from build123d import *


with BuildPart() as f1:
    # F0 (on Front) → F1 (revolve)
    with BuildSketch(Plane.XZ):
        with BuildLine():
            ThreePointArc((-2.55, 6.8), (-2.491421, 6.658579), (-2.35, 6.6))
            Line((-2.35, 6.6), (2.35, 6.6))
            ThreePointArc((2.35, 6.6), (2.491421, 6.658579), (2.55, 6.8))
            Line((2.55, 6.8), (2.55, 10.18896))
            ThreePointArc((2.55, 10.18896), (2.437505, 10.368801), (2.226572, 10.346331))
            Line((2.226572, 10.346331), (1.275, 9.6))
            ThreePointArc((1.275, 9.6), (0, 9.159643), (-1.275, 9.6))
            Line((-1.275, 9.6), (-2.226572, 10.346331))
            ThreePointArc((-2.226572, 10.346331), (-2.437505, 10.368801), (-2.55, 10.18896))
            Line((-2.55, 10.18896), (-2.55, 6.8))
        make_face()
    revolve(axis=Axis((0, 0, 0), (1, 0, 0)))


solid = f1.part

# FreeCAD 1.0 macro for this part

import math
import FreeCAD as App
import Part
import Sketcher

V = App.Vector

doc = App.newDocument("Part")
body = doc.addObject("PartDesign::Body", "Body")

# Sketch on XZ plane
sketch1 = doc.addObject("Sketcher::SketchObject", "Sketch")
body.addObject(sketch1)
sketch1.AttachmentSupport = (doc.XZ_Plane, [""])
sketch1.MapMode = "FlatFace"
sketch1.addGeometry(Part.ArcOfCircle(Part.Circle(V(-2.349999, 6.800001, 0), V(0, 0, 1), 0.200001), math.radians(-179.999652), math.radians(-90.000348)), False)
sketch1.addGeometry(Part.LineSegment(V(-2.35, 6.6, 0), V(2.35, 6.6, 0)), False)
sketch1.addGeometry(Part.ArcOfCircle(Part.Circle(V(2.349999, 6.800001, 0), V(0, 0, 1), 0.200001), math.radians(-89.999652), math.radians(-0.000348)), False)
sketch1.addGeometry(Part.LineSegment(V(2.55, 6.8, 0), V(2.55, 10.18896, 0)), False)
sketch1.addGeometry(Part.ArcOfCircle(Part.Circle(V(2.35, 10.188959, 0), V(0, 0, 1), 0.2), math.radians(0.000144), math.radians(128.107344)), False)
sketch1.addGeometry(Part.LineSegment(V(2.226572, 10.346331, 0), V(1.275, 9.6, 0)), False)
sketch1.addGeometry(Part.ArcOfCircle(Part.Circle(V(0, 11.225625, 0), V(0, 0, 1), 2.065982), math.radians(-128.107577), math.radians(-51.892423)), False)
sketch1.addGeometry(Part.LineSegment(V(-1.275, 9.6, 0), V(-2.226572, 10.346331, 0)), False)
sketch1.addGeometry(Part.ArcOfCircle(Part.Circle(V(-2.35, 10.188959, 0), V(0, 0, 1), 0.2), math.radians(51.892656), math.radians(179.999856)), False)
sketch1.addGeometry(Part.LineSegment(V(-2.55, 10.18896, 0), V(-2.55, 6.8, 0)), False)
sketch1.addConstraint(Sketcher.Constraint("Coincident", 0, 2, 1, 1))
sketch1.addConstraint(Sketcher.Constraint("Coincident", 1, 2, 2, 1))
sketch1.addConstraint(Sketcher.Constraint("Coincident", 2, 2, 3, 1))
sketch1.addConstraint(Sketcher.Constraint("Coincident", 3, 2, 4, 1))
sketch1.addConstraint(Sketcher.Constraint("Coincident", 4, 2, 5, 1))
sketch1.addConstraint(Sketcher.Constraint("Tangent", 5, 2, 6, 2))
sketch1.addConstraint(Sketcher.Constraint("Tangent", 6, 1, 7, 1))
sketch1.addConstraint(Sketcher.Constraint("Coincident", 7, 2, 8, 1))
sketch1.addConstraint(Sketcher.Constraint("Coincident", 8, 2, 9, 1))
sketch1.addConstraint(Sketcher.Constraint("Coincident", 9, 2, 0, 1))
sketch1.addConstraint(Sketcher.Constraint("Horizontal", 1))
sketch1.addConstraint(Sketcher.Constraint("Vertical", 3))
sketch1.addConstraint(Sketcher.Constraint("Vertical", 9))
sketch1.addConstraint(Sketcher.Constraint("Equal", 0, 2))
sketch1.addConstraint(Sketcher.Constraint("Equal", 2, 4))
sketch1.addConstraint(Sketcher.Constraint("Equal", 4, 8))
sketch1.addConstraint(Sketcher.Constraint("Symmetric", 4, 3, 8, 3, -2))
sketch1.addConstraint(Sketcher.Constraint("PointOnObject", 6, 3, -2))
sketch1.addConstraint(Sketcher.Constraint("Horizontal", 0, 3, 2, 2))
sketch1.addConstraint(Sketcher.Constraint("Horizontal", 8, 3, 3, 2))
sketch1.addConstraint(Sketcher.Constraint("Horizontal", 4, 2, 7, 2))
sketch1.addConstraint(Sketcher.Constraint("Horizontal", 3, 2, 8, 2))
sketch1.addConstraint(Sketcher.Constraint("Horizontal", 2, 2, 9, 2))
sketch1.addConstraint(Sketcher.Constraint("Vertical", 8, 3, 0, 2))
sketch1.addConstraint(Sketcher.Constraint("Vertical", 4, 3, 1, 2))
sketch1.addConstraint(Sketcher.Constraint("Radius", 0, 0.200001))
sketch1.addConstraint(Sketcher.Constraint("DistanceX", 1, 1, 1, 2, 4.7))
sketch1.addConstraint(Sketcher.Constraint("DistanceY", 0, 2, 6, 1, 3.0))
sketch1.addConstraint(Sketcher.Constraint("DistanceY", -1, 1, 0, 3, 6.800001))
sketch1.addConstraint(Sketcher.Constraint("DistanceX", 6, 1, 5, 2, 2.55))
sketch1.addConstraint(Sketcher.Constraint("Radius", 6, 2.065982))
sketch1.addConstraint(Sketcher.Constraint("Distance", 5, 1.209338))
revolution = doc.addObject("PartDesign::Revolution", "Revolution")
body.addObject(revolution)
revolution.Profile = sketch1
revolution.ReferenceAxis = (sketch1, ["H_Axis"])
revolution.Angle = 360

doc.recompute()
